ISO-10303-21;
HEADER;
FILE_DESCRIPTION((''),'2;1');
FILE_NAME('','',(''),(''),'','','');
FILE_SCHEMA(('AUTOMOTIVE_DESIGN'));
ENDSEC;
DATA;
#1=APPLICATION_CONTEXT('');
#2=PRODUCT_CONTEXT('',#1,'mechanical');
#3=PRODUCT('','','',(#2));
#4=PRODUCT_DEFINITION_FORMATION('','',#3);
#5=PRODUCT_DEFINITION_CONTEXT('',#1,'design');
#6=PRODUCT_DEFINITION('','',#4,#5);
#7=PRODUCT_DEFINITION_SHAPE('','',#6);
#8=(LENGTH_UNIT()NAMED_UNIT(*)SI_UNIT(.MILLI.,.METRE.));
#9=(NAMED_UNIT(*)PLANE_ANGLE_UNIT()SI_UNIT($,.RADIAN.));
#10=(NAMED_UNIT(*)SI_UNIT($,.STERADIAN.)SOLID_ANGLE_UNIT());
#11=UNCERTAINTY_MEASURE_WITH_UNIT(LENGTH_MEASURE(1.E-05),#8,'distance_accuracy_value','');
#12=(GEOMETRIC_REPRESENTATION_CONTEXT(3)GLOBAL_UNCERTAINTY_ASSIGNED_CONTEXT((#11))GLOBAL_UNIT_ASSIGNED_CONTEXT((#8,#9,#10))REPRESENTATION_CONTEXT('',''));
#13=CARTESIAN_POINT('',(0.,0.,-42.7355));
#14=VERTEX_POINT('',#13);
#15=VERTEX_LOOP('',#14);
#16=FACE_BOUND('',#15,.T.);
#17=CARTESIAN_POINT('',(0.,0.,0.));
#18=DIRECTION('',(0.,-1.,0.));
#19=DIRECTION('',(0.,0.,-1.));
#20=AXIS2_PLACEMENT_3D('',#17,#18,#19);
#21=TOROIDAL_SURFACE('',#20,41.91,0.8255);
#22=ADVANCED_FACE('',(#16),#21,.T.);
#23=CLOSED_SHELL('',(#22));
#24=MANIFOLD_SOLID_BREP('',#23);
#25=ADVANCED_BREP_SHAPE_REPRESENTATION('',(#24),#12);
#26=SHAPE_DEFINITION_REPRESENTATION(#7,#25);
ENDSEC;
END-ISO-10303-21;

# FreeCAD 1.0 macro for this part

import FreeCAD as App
import Part
import Sketcher
Q = App.Units.Quantity

doc = App.newDocument("Part")
body = doc.addObject("PartDesign::Body", "Body")

sketch1 = body.newObject("Sketcher::SketchObject", "Sketch")
sketch1.AttachmentSupport = (doc.getObject("XY_Plane"), [""])
sketch1.MapMode = "FlatFace"
sketch1.addGeometry(Part.Circle(App.Vector(-41.9, 0, 0), App.Vector(0, 0, 1), 0.8), False)
sketch1.addConstraint([
    Sketcher.Constraint("PointOnObject", 0, 3, -1),
    Sketcher.Constraint("Diameter", 0, Q("0.065 in")),
    Sketcher.Constraint("DistanceX", 0, 3, -1, 1, Q("1.65 in")),
])
revolution = body.newObject("PartDesign::Revolution", "Revolution")
revolution.Profile = sketch1
revolution.ReferenceAxis = (sketch1, ["V_Axis"])
revolution.Angle = 360

doc.recompute()
